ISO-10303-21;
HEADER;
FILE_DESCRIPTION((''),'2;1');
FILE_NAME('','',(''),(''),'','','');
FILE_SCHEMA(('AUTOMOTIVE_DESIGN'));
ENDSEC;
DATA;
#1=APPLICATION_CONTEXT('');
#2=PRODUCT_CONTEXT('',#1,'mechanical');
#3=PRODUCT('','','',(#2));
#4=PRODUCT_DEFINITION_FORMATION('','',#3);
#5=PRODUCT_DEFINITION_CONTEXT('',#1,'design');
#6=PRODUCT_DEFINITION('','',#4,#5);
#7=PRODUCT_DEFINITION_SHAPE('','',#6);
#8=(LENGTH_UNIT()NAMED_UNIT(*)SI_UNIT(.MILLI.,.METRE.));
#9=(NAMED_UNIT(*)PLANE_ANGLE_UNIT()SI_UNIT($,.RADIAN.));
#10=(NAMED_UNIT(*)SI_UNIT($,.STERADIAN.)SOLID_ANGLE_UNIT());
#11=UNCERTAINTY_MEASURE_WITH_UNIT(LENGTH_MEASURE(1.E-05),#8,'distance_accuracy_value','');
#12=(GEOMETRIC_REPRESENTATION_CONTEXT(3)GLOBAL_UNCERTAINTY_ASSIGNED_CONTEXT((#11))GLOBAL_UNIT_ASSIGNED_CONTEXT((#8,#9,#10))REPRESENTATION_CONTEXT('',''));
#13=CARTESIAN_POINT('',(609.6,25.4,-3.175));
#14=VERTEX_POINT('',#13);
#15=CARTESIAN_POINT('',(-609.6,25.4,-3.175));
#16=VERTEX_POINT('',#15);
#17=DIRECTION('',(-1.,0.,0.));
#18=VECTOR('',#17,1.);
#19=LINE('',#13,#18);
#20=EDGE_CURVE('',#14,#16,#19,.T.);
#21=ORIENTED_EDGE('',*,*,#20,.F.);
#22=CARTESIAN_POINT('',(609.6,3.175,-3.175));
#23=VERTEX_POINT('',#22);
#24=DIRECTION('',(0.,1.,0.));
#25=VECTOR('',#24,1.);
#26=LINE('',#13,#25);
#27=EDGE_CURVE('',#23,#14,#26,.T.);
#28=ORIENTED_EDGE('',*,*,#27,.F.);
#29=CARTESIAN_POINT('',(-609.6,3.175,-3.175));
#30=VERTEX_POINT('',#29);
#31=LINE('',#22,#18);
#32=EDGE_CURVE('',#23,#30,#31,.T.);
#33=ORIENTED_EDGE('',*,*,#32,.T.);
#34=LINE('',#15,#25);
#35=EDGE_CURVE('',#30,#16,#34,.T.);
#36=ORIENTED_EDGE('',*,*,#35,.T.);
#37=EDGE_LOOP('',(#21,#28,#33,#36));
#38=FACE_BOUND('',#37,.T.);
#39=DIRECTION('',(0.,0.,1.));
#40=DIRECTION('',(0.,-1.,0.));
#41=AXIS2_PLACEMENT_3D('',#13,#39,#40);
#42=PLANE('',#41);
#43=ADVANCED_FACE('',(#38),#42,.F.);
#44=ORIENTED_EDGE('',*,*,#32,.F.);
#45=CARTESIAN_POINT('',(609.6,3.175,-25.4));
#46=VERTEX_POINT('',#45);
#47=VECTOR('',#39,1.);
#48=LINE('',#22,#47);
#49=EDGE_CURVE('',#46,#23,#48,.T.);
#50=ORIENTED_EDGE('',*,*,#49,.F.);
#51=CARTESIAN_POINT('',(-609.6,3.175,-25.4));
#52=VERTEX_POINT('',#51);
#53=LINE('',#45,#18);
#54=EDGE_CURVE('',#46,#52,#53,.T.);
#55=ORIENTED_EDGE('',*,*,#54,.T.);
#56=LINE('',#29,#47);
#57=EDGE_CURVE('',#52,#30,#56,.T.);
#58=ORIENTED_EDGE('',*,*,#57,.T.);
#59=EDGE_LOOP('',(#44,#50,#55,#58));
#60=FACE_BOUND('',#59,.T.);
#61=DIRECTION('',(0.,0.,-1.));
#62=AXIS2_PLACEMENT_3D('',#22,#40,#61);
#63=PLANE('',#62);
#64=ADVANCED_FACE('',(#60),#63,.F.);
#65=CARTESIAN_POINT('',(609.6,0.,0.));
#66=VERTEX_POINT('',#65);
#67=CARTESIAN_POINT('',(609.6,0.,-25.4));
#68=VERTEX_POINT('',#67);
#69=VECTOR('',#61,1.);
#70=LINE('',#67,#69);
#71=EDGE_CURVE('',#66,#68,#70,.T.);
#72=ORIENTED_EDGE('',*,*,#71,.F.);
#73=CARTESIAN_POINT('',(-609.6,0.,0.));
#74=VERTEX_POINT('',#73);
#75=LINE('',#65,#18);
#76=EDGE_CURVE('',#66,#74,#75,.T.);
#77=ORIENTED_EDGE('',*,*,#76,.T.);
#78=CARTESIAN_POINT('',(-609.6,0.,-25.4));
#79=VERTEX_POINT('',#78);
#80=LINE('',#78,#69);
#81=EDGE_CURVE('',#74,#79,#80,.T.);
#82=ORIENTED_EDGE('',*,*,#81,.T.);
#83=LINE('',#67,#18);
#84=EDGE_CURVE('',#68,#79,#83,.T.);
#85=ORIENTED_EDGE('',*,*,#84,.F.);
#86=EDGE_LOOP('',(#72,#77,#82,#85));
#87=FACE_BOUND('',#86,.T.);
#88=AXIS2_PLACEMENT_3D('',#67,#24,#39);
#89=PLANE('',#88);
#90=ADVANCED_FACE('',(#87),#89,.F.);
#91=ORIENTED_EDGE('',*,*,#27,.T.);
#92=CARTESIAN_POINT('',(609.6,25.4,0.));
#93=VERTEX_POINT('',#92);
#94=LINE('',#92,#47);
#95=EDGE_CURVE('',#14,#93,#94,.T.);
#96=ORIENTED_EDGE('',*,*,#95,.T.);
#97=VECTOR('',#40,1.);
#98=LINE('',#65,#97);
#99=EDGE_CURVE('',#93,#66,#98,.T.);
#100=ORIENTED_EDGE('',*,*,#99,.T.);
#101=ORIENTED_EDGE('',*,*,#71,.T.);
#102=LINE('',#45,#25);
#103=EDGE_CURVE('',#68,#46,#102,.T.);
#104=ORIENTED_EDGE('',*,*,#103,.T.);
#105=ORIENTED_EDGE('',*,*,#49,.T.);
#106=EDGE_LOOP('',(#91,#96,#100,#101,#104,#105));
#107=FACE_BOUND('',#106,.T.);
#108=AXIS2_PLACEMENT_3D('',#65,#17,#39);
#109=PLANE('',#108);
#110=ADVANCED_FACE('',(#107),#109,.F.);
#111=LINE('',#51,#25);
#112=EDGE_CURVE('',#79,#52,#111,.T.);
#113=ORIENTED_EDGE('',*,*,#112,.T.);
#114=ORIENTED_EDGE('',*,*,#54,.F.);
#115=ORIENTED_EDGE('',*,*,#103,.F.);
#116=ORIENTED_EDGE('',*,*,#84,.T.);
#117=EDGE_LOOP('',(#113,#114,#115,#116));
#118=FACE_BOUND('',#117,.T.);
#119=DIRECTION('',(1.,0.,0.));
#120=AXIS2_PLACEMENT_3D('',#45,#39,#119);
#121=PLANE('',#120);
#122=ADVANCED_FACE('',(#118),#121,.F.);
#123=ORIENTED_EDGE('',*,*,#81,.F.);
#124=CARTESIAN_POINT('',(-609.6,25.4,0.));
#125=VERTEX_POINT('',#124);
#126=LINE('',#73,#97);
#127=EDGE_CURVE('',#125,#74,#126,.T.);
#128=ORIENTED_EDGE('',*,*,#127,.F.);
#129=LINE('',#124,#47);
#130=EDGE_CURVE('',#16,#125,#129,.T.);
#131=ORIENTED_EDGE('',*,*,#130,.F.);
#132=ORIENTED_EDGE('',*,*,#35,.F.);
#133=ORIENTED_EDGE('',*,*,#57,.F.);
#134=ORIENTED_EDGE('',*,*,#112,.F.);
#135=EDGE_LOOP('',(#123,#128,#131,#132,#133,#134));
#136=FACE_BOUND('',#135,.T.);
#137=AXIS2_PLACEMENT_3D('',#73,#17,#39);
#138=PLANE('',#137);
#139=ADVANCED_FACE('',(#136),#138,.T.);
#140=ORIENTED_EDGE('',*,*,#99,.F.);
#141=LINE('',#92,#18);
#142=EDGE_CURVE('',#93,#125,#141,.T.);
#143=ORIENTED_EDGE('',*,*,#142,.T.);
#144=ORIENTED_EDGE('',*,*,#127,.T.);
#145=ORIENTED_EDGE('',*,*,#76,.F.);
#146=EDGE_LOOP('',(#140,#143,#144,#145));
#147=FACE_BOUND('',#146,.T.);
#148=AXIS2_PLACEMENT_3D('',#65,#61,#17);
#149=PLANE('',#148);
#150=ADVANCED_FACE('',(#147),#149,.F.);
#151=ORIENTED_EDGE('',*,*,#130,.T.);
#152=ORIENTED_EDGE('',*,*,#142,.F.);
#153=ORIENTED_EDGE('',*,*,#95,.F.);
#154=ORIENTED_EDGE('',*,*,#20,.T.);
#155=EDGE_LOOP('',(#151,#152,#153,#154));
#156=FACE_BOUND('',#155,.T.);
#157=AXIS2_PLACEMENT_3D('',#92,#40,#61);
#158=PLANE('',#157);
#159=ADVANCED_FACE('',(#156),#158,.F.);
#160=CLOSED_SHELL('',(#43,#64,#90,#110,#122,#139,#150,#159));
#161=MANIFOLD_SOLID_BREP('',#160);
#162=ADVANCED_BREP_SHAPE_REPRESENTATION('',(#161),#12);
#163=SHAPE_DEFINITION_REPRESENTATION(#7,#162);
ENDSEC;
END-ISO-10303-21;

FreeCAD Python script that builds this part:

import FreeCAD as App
import Part
import Sketcher
from FreeCAD import Vector
Q = App.Units.Quantity


def add_polygon(sketch, points):
    """Adds a closed chain of lines whose ends are joined by coincident constraints."""
    first, n = sketch.GeometryCount, len(points)
    for a, b in zip(points, points[1:] + points[:1]):
        sketch.addGeometry(Part.LineSegment(App.Vector(*a, 0), App.Vector(*b, 0)), False)
    for i in range(n):
        sketch.addConstraint(Sketcher.Constraint("Coincident", first + i, 2, first + (i + 1) % n, 1))

doc = App.newDocument("Part")
body = doc.addObject("PartDesign::Body", "Body")

# Sketch on YZ plane
sketch1 = doc.addObject("Sketcher::SketchObject", "Sketch")
body.addObject(sketch1)
sketch1.AttachmentSupport = (doc.YZ_Plane, [""])
sketch1.MapMode = "FlatFace"
add_polygon(sketch1, [(25.4, 0), (0, 0), (0, -25.4), (3.2, -25.4), (3.2, -3.2), (25.4, -3.2)])  # lines 0-5
sketch1.addConstraint(Sketcher.Constraint("Horizontal", 0))
sketch1.addConstraint(Sketcher.Constraint("Vertical", 1))
sketch1.addConstraint(Sketcher.Constraint("Horizontal", 2))
sketch1.addConstraint(Sketcher.Constraint("Vertical", 3))
sketch1.addConstraint(Sketcher.Constraint("Horizontal", 4))
sketch1.addConstraint(Sketcher.Constraint("Vertical", 5))
sketch1.addConstraint(Sketcher.Constraint("Coincident", 0, 2, -1, 1))
sketch1.addConstraint(Sketcher.Constraint("Equal", 0, 1))
sketch1.addConstraint(Sketcher.Constraint("Equal", 4, 3))
sketch1.addConstraint(Sketcher.Constraint("DistanceX", 0, 2, 0, 1, Q("1 in")))
sketch1.addConstraint(Sketcher.Constraint("DistanceX", 2, 1, 2, 2, Q("0.125 in")))
pad1 = doc.addObject("PartDesign::Pad", "Pad")
body.addObject(pad1)
pad1.Profile = sketch1
pad1.Length = Q("48 in")
pad1.Midplane = True

doc.recompute()
